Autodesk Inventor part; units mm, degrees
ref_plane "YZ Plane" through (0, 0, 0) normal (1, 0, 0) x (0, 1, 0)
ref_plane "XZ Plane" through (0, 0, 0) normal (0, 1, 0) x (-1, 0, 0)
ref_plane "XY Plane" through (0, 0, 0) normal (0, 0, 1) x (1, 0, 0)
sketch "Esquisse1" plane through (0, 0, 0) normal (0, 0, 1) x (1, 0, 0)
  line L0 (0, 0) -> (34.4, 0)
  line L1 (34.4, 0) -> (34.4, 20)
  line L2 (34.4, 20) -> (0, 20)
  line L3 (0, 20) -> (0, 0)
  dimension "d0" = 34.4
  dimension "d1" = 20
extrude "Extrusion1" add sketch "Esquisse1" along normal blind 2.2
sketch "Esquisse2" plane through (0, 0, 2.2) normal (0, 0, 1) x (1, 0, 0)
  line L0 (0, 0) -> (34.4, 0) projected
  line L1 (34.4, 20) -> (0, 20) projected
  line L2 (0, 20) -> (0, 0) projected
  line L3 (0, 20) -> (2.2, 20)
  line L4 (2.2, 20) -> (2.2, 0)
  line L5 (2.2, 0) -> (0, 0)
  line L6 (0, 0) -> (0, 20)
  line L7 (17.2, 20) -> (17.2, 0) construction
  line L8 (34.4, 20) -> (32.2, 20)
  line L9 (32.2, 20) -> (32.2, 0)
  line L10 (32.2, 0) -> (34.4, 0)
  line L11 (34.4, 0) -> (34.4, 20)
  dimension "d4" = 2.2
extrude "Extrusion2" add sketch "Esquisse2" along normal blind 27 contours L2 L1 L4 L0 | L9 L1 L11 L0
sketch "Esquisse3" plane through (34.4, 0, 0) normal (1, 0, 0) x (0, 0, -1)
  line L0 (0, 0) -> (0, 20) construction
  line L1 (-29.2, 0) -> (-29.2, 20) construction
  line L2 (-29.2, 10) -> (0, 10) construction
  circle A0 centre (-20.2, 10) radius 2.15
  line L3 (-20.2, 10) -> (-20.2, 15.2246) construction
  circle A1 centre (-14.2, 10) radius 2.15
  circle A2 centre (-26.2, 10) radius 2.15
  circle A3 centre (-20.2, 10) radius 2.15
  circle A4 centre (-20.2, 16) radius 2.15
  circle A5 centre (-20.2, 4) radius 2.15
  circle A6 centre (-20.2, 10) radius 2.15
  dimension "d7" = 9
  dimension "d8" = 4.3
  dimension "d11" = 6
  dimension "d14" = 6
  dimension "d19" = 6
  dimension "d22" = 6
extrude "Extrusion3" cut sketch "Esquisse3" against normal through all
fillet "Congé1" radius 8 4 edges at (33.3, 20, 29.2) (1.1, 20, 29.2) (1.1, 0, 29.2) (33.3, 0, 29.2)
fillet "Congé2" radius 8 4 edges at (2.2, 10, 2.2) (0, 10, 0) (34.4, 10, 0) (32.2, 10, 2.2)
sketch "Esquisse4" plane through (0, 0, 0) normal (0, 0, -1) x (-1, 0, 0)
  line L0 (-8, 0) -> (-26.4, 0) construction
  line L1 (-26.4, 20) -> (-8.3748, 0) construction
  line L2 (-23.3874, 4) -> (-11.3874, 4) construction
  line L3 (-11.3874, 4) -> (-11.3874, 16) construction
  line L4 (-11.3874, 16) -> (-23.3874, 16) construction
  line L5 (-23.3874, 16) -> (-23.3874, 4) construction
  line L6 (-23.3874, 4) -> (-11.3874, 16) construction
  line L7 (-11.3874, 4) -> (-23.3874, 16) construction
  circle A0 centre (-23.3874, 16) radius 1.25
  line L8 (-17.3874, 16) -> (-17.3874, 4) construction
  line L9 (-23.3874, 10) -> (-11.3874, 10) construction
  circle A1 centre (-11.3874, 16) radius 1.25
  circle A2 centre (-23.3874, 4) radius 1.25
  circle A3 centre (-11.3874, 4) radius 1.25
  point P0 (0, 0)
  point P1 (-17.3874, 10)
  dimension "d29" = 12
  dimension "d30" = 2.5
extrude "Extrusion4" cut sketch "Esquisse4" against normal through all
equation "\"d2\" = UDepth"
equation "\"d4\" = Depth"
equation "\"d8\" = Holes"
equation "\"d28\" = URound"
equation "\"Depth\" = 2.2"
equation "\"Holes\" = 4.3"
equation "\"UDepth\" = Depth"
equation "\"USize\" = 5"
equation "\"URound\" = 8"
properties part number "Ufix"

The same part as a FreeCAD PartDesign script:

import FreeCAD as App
import Part
import Sketcher

V = App.Vector


def edges_at(feature, points):
    """Names of the edges that pass closest to the given points."""
    edges = feature.Shape.Edges
    near = lambda p: min(range(len(edges)), key=lambda i: edges[i].distToShape(Part.Vertex(*p))[0])
    return sorted({f"Edge{near(p) + 1}" for p in points})

doc = App.newDocument("Part")
body = doc.addObject("PartDesign::Body", "Body")

sketch1 = doc.addObject("Sketcher::SketchObject", "Sketch")
body.addObject(sketch1)
sketch1.AttachmentSupport = (doc.XY_Plane, [""])
sketch1.MapMode = "FlatFace"
sketch1.addGeometry([
    Part.LineSegment(V(0, 20, 0), V(0, 0, 0)),
    Part.LineSegment(V(0, 0, 0), V(34, 0, 0)),
    Part.LineSegment(V(34, 0, 0), V(34, 20, 0)),
    Part.LineSegment(V(34, 20, 0), V(0, 20, 0)),
], False)
sketch1.addConstraint([
    Sketcher.Constraint("Coincident", 0, 2, 1, 1),
    Sketcher.Constraint("Coincident", 1, 2, 2, 1),
    Sketcher.Constraint("Coincident", 2, 2, 3, 1),
    Sketcher.Constraint("Coincident", 3, 2, 0, 1),
    Sketcher.Constraint("Vertical", 0),
    Sketcher.Constraint("Horizontal", 1),
    Sketcher.Constraint("Vertical", 2),
    Sketcher.Constraint("Horizontal", 3),
    Sketcher.Constraint("Coincident", 0, 2, -1, 1),
    Sketcher.Constraint("DistanceY", 0, 2, 0, 1, 20.0),
    Sketcher.Constraint("DistanceX", 1, 1, 1, 2, 34.4),
])
pad1 = doc.addObject("PartDesign::Pad", "Pad")
body.addObject(pad1)
pad1.Profile = sketch1
pad1.Length = 2.2

sketch2 = doc.addObject("Sketcher::SketchObject", "Sketch001")
body.addObject(sketch2)
sketch2.AttachmentSupport = (doc.XY_Plane, [""])
sketch2.MapMode = "FlatFace"
sketch2.AttachmentOffset = App.Placement(V(0, 0, 2.2), App.Rotation())
sketch2.addGeometry([
    Part.LineSegment(V(0, 20, 0), V(0, 0, 0)),
    Part.LineSegment(V(0, 0, 0), V(2.2, 0, 0)),
    Part.LineSegment(V(2.2, 0, 0), V(2.2, 20, 0)),
    Part.LineSegment(V(2.2, 20, 0), V(0, 20, 0)),
    Part.LineSegment(V(32.2, 20, 0), V(32.2, 0, 0)),
    Part.LineSegment(V(32.2, 0, 0), V(34.4, 0, 0)),
    Part.LineSegment(V(34.4, 0, 0), V(34.4, 20, 0)),
    Part.LineSegment(V(34.4, 20, 0), V(32.2, 20, 0)),
], False)
sketch2.addConstraint([
    Sketcher.Constraint("Coincident", 0, 2, 1, 1),
    Sketcher.Constraint("Coincident", 1, 2, 2, 1),
    Sketcher.Constraint("Coincident", 2, 2, 3, 1),
    Sketcher.Constraint("Coincident", 3, 2, 0, 1),
    Sketcher.Constraint("Coincident", 4, 2, 5, 1),
    Sketcher.Constraint("Coincident", 5, 2, 6, 1),
    Sketcher.Constraint("Coincident", 6, 2, 7, 1),
    Sketcher.Constraint("Coincident", 7, 2, 4, 1),
    Sketcher.Constraint("Vertical", 0),
    Sketcher.Constraint("Horizontal", 1),
    Sketcher.Constraint("Vertical", 2),
    Sketcher.Constraint("Horizontal", 3),
    Sketcher.Constraint("Vertical", 4),
    Sketcher.Constraint("Horizontal", 5),
    Sketcher.Constraint("Vertical", 6),
    Sketcher.Constraint("Horizontal", 7),
    Sketcher.Constraint("Coincident", 0, 2, -1, 1),
    Sketcher.Constraint("PointOnObject", 4, 2, -1),
    Sketcher.Constraint("Horizontal", 3, 2, 6, 2),
    Sketcher.Constraint("Equal", 3, 5),
    Sketcher.Constraint("DistanceX", 1, 1, 1, 2, 2.2),
    Sketcher.Constraint("DistanceY", 0, 2, 0, 1, 20.0),
    Sketcher.Constraint("DistanceX", 1, 2, 4, 2, 30.0),
])
pad2 = doc.addObject("PartDesign::Pad", "Pad001")
body.addObject(pad2)
pad2.Profile = sketch2
pad2.Length = 27

sketch3 = doc.addObject("Sketcher::SketchObject", "Sketch002")
body.addObject(sketch3)
sketch3.AttachmentSupport = (doc.YZ_Plane, [""])
sketch3.MapMode = "FlatFace"
sketch3.AttachmentOffset = App.Placement(V(0, 0, 34.4), App.Rotation())
sketch3.addGeometry([
    Part.Circle(V(10, 20.2, 0), V(0, 0, 1), 2.1),
    Part.Circle(V(10, 14.2, 0), V(0, 0, 1), 2.1),
    Part.Circle(V(10, 26.2, 0), V(0, 0, 1), 2.1),
    Part.Circle(V(16, 20.2, 0), V(0, 0, 1), 2.1),
    Part.Circle(V(4, 20.2, 0), V(0, 0, 1), 2.1),
], False)
sketch3.addConstraint([
    Sketcher.Constraint("Equal", 0, 1),
    Sketcher.Constraint("Equal", 1, 2),
    Sketcher.Constraint("Equal", 2, 3),
    Sketcher.Constraint("Equal", 3, 4),
    Sketcher.Constraint("Horizontal", 0, 3, 3, 3),
    Sketcher.Constraint("Horizontal", 3, 3, 4, 3),
    Sketcher.Constraint("Vertical", 0, 3, 1, 3),
    Sketcher.Constraint("Vertical", 1, 3, 2, 3),
    Sketcher.Constraint("Diameter", 0, 4.3),
    Sketcher.Constraint("DistanceY", 1, 3, 0, 3, 6.0),
    Sketcher.Constraint("DistanceY", 0, 3, 2, 3, 6.0),
    Sketcher.Constraint("DistanceX", 0, 3, 3, 3, 6.0),
    Sketcher.Constraint("DistanceX", 4, 3, 0, 3, 6.0),
    Sketcher.Constraint("DistanceX", -1, 1, 0, 3, 10.0),
    Sketcher.Constraint("DistanceY", -1, 1, 0, 3, 20.2),
])
pocket1 = doc.addObject("PartDesign::Pocket", "Pocket")
body.addObject(pocket1)
pocket1.Profile = sketch3
pocket1.Type = "ThroughAll"
doc.recompute()

fillet = doc.addObject("PartDesign::Fillet", "Fillet")
body.addObject(fillet)
fillet.Base = (pocket1, edges_at(pocket1, [
    (33.3, 20, 29.2),
    (1.1, 20, 29.2),
    (1.1, 0, 29.2),
    (33.3, 0, 29.2),
]))
fillet.Radius = 8
doc.recompute()

fillet2 = doc.addObject("PartDesign::Fillet", "Fillet001")
body.addObject(fillet2)
fillet2.Base = (fillet, edges_at(fillet, [
    (2.2, 10, 2.2),
    (0, 10, 0),
    (34.4, 10, 0),
    (32.2, 10, 2.2),
]))
fillet2.Radius = 8

sketch4 = doc.addObject("Sketcher::SketchObject", "Sketch003")
body.addObject(sketch4)
sketch4.AttachmentSupport = (doc.XY_Plane, [""])
sketch4.MapMode = "FlatFace"
sketch4.addGeometry([
    Part.Circle(V(23.4, 16, 0), V(0, 0, 1), 1.2),
    Part.Circle(V(11.4, 16, 0), V(0, 0, 1), 1.2),
    Part.Circle(V(23.4, 4, 0), V(0, 0, 1), 1.2),
    Part.Circle(V(11.4, 4, 0), V(0, 0, 1), 1.2),
], False)
sketch4.addConstraint([
    Sketcher.Constraint("Equal", 0, 1),
    Sketcher.Constraint("Equal", 1, 2),
    Sketcher.Constraint("Equal", 2, 3),
    Sketcher.Constraint("Horizontal", 0, 3, 1, 3),
    Sketcher.Constraint("Horizontal", 2, 3, 3, 3),
    Sketcher.Constraint("Vertical", 0, 3, 2, 3),
    Sketcher.Constraint("Vertical", 1, 3, 3, 3),
    Sketcher.Constraint("Diameter", 0, 2.5),
    Sketcher.Constraint("DistanceX", 1, 3, 0, 3, 12.0),
    Sketcher.Constraint("DistanceY", 2, 3, 0, 3, 12.0),
    Sketcher.Constraint("DistanceY", -1, 1, 0, 3, 16.0),
    Sketcher.Constraint("DistanceX", -1, 1, 0, 3, 23.3874),
])
pocket2 = doc.addObject("PartDesign::Pocket", "Pocket001")
body.addObject(pocket2)
pocket2.Profile = sketch4
pocket2.Type = "ThroughAll"
pocket2.Reversed = True

doc.recompute()
